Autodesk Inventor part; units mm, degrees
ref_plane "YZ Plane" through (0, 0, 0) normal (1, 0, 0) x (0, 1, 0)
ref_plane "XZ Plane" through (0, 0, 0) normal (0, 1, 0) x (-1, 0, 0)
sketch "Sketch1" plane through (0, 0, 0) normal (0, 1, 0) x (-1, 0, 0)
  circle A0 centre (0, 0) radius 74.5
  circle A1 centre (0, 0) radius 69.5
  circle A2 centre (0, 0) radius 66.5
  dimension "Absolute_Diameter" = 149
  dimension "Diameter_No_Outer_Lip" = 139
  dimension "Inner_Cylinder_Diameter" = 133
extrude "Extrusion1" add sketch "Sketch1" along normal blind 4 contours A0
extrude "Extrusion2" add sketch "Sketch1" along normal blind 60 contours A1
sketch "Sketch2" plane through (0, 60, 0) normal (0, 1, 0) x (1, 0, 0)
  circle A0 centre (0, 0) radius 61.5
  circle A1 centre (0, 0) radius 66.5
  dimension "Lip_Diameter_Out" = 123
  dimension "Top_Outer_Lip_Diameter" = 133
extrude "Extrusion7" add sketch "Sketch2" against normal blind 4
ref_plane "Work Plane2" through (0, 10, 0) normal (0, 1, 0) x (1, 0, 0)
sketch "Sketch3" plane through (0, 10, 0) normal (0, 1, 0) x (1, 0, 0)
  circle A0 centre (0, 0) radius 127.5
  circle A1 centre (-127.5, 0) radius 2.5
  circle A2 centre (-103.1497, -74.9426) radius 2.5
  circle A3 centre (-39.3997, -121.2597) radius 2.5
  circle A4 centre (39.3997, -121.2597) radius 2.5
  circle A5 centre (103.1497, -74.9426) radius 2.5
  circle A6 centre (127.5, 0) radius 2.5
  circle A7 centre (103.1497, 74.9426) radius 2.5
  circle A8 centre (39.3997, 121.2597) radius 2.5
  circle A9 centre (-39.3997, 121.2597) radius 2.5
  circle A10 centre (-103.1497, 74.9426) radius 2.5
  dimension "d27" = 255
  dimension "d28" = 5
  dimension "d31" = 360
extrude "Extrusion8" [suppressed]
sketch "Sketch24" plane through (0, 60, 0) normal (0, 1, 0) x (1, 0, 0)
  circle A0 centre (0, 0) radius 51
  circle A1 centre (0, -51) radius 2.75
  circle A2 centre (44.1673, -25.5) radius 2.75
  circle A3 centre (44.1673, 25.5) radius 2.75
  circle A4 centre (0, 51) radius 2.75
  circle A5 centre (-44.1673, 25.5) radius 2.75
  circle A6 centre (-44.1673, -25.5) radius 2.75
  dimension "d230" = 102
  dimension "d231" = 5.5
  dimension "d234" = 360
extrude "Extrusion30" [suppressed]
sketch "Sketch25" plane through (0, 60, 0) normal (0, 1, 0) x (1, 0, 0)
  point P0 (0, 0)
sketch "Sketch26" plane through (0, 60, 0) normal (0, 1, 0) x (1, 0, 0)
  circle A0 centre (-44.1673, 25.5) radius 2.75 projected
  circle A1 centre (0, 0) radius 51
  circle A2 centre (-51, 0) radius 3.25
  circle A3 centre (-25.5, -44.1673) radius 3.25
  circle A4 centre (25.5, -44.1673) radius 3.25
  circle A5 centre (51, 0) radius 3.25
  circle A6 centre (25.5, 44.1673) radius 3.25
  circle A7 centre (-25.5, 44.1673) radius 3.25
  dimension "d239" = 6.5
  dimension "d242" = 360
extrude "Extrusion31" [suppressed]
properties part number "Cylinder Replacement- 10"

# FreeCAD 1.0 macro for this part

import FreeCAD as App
import Part
import Sketcher
from FreeCAD import Vector
Q = App.Units.Quantity

doc = App.newDocument("Part")
body = doc.addObject("PartDesign::Body", "Body")

# Sketch on XZ plane
sketch1 = doc.addObject("Sketcher::SketchObject", "Sketch")
body.addObject(sketch1)
sketch1.AttachmentSupport = (doc.XZ_Plane, [""])
sketch1.MapMode = "FlatFace"
sketch1.addGeometry(Part.Circle(Vector(0, 0, 0), Vector(0, 0, 1), 74), False)
sketch1.addGeometry(Part.Circle(Vector(0, 0, 0), Vector(0, 0, 1), 70), False)
sketch1.addConstraint(Sketcher.Constraint("Coincident", 0, 3, -1, 1))
sketch1.addConstraint(Sketcher.Constraint("Coincident", 1, 3, -1, 1))
sketch1.addConstraint(Sketcher.Constraint("Diameter", 0, Q("149 mm")))
sketch1.addConstraint(Sketcher.Constraint("Diameter", 1, Q("139 mm")))
pad1 = doc.addObject("PartDesign::Pad", "Pad")
body.addObject(pad1)
pad1.Profile = sketch1
pad1.Length = 4
pad1.Reversed = True

# Sketch on XZ plane
sketch2 = doc.addObject("Sketcher::SketchObject", "Sketch001")
body.addObject(sketch2)
sketch2.AttachmentSupport = (doc.XZ_Plane, [""])
sketch2.MapMode = "FlatFace"
sketch2.addGeometry(Part.Circle(Vector(0, 0, 0), Vector(0, 0, 1), 70), False)
sketch2.addGeometry(Part.Circle(Vector(0, 0, 0), Vector(0, 0, 1), 66), False)
sketch2.addConstraint(Sketcher.Constraint("Coincident", 0, 3, -1, 1))
sketch2.addConstraint(Sketcher.Constraint("Coincident", 1, 3, -1, 1))
sketch2.addConstraint(Sketcher.Constraint("Diameter", 0, Q("139 mm")))
sketch2.addConstraint(Sketcher.Constraint("Diameter", 1, Q("133 mm")))
pad2 = doc.addObject("PartDesign::Pad", "Pad001")
body.addObject(pad2)
pad2.Profile = sketch2
pad2.Length = 60
pad2.Reversed = True

# Sketch on XZ plane
sketch3 = doc.addObject("Sketcher::SketchObject", "Sketch002")
body.addObject(sketch3)
sketch3.AttachmentSupport = (doc.XZ_Plane, [""])
sketch3.MapMode = "FlatFace"
sketch3.AttachmentOffset = App.Placement(Vector(0, 0, -60), App.Rotation())
sketch3.addGeometry(Part.Circle(Vector(0, 0, 0), Vector(0, 0, 1), 66), False)
sketch3.addGeometry(Part.Circle(Vector(0, 0, 0), Vector(0, 0, 1), 62), False)
sketch3.addConstraint(Sketcher.Constraint("Coincident", 0, 3, -1, 1))
sketch3.addConstraint(Sketcher.Constraint("Coincident", 1, 3, -1, 1))
sketch3.addConstraint(Sketcher.Constraint("Diameter", 0, Q("133 mm")))
sketch3.addConstraint(Sketcher.Constraint("Diameter", 1, Q("123 mm")))
pad3 = doc.addObject("PartDesign::Pad", "Pad002")
body.addObject(pad3)
pad3.Profile = sketch3
pad3.Length = 4

doc.recompute()
